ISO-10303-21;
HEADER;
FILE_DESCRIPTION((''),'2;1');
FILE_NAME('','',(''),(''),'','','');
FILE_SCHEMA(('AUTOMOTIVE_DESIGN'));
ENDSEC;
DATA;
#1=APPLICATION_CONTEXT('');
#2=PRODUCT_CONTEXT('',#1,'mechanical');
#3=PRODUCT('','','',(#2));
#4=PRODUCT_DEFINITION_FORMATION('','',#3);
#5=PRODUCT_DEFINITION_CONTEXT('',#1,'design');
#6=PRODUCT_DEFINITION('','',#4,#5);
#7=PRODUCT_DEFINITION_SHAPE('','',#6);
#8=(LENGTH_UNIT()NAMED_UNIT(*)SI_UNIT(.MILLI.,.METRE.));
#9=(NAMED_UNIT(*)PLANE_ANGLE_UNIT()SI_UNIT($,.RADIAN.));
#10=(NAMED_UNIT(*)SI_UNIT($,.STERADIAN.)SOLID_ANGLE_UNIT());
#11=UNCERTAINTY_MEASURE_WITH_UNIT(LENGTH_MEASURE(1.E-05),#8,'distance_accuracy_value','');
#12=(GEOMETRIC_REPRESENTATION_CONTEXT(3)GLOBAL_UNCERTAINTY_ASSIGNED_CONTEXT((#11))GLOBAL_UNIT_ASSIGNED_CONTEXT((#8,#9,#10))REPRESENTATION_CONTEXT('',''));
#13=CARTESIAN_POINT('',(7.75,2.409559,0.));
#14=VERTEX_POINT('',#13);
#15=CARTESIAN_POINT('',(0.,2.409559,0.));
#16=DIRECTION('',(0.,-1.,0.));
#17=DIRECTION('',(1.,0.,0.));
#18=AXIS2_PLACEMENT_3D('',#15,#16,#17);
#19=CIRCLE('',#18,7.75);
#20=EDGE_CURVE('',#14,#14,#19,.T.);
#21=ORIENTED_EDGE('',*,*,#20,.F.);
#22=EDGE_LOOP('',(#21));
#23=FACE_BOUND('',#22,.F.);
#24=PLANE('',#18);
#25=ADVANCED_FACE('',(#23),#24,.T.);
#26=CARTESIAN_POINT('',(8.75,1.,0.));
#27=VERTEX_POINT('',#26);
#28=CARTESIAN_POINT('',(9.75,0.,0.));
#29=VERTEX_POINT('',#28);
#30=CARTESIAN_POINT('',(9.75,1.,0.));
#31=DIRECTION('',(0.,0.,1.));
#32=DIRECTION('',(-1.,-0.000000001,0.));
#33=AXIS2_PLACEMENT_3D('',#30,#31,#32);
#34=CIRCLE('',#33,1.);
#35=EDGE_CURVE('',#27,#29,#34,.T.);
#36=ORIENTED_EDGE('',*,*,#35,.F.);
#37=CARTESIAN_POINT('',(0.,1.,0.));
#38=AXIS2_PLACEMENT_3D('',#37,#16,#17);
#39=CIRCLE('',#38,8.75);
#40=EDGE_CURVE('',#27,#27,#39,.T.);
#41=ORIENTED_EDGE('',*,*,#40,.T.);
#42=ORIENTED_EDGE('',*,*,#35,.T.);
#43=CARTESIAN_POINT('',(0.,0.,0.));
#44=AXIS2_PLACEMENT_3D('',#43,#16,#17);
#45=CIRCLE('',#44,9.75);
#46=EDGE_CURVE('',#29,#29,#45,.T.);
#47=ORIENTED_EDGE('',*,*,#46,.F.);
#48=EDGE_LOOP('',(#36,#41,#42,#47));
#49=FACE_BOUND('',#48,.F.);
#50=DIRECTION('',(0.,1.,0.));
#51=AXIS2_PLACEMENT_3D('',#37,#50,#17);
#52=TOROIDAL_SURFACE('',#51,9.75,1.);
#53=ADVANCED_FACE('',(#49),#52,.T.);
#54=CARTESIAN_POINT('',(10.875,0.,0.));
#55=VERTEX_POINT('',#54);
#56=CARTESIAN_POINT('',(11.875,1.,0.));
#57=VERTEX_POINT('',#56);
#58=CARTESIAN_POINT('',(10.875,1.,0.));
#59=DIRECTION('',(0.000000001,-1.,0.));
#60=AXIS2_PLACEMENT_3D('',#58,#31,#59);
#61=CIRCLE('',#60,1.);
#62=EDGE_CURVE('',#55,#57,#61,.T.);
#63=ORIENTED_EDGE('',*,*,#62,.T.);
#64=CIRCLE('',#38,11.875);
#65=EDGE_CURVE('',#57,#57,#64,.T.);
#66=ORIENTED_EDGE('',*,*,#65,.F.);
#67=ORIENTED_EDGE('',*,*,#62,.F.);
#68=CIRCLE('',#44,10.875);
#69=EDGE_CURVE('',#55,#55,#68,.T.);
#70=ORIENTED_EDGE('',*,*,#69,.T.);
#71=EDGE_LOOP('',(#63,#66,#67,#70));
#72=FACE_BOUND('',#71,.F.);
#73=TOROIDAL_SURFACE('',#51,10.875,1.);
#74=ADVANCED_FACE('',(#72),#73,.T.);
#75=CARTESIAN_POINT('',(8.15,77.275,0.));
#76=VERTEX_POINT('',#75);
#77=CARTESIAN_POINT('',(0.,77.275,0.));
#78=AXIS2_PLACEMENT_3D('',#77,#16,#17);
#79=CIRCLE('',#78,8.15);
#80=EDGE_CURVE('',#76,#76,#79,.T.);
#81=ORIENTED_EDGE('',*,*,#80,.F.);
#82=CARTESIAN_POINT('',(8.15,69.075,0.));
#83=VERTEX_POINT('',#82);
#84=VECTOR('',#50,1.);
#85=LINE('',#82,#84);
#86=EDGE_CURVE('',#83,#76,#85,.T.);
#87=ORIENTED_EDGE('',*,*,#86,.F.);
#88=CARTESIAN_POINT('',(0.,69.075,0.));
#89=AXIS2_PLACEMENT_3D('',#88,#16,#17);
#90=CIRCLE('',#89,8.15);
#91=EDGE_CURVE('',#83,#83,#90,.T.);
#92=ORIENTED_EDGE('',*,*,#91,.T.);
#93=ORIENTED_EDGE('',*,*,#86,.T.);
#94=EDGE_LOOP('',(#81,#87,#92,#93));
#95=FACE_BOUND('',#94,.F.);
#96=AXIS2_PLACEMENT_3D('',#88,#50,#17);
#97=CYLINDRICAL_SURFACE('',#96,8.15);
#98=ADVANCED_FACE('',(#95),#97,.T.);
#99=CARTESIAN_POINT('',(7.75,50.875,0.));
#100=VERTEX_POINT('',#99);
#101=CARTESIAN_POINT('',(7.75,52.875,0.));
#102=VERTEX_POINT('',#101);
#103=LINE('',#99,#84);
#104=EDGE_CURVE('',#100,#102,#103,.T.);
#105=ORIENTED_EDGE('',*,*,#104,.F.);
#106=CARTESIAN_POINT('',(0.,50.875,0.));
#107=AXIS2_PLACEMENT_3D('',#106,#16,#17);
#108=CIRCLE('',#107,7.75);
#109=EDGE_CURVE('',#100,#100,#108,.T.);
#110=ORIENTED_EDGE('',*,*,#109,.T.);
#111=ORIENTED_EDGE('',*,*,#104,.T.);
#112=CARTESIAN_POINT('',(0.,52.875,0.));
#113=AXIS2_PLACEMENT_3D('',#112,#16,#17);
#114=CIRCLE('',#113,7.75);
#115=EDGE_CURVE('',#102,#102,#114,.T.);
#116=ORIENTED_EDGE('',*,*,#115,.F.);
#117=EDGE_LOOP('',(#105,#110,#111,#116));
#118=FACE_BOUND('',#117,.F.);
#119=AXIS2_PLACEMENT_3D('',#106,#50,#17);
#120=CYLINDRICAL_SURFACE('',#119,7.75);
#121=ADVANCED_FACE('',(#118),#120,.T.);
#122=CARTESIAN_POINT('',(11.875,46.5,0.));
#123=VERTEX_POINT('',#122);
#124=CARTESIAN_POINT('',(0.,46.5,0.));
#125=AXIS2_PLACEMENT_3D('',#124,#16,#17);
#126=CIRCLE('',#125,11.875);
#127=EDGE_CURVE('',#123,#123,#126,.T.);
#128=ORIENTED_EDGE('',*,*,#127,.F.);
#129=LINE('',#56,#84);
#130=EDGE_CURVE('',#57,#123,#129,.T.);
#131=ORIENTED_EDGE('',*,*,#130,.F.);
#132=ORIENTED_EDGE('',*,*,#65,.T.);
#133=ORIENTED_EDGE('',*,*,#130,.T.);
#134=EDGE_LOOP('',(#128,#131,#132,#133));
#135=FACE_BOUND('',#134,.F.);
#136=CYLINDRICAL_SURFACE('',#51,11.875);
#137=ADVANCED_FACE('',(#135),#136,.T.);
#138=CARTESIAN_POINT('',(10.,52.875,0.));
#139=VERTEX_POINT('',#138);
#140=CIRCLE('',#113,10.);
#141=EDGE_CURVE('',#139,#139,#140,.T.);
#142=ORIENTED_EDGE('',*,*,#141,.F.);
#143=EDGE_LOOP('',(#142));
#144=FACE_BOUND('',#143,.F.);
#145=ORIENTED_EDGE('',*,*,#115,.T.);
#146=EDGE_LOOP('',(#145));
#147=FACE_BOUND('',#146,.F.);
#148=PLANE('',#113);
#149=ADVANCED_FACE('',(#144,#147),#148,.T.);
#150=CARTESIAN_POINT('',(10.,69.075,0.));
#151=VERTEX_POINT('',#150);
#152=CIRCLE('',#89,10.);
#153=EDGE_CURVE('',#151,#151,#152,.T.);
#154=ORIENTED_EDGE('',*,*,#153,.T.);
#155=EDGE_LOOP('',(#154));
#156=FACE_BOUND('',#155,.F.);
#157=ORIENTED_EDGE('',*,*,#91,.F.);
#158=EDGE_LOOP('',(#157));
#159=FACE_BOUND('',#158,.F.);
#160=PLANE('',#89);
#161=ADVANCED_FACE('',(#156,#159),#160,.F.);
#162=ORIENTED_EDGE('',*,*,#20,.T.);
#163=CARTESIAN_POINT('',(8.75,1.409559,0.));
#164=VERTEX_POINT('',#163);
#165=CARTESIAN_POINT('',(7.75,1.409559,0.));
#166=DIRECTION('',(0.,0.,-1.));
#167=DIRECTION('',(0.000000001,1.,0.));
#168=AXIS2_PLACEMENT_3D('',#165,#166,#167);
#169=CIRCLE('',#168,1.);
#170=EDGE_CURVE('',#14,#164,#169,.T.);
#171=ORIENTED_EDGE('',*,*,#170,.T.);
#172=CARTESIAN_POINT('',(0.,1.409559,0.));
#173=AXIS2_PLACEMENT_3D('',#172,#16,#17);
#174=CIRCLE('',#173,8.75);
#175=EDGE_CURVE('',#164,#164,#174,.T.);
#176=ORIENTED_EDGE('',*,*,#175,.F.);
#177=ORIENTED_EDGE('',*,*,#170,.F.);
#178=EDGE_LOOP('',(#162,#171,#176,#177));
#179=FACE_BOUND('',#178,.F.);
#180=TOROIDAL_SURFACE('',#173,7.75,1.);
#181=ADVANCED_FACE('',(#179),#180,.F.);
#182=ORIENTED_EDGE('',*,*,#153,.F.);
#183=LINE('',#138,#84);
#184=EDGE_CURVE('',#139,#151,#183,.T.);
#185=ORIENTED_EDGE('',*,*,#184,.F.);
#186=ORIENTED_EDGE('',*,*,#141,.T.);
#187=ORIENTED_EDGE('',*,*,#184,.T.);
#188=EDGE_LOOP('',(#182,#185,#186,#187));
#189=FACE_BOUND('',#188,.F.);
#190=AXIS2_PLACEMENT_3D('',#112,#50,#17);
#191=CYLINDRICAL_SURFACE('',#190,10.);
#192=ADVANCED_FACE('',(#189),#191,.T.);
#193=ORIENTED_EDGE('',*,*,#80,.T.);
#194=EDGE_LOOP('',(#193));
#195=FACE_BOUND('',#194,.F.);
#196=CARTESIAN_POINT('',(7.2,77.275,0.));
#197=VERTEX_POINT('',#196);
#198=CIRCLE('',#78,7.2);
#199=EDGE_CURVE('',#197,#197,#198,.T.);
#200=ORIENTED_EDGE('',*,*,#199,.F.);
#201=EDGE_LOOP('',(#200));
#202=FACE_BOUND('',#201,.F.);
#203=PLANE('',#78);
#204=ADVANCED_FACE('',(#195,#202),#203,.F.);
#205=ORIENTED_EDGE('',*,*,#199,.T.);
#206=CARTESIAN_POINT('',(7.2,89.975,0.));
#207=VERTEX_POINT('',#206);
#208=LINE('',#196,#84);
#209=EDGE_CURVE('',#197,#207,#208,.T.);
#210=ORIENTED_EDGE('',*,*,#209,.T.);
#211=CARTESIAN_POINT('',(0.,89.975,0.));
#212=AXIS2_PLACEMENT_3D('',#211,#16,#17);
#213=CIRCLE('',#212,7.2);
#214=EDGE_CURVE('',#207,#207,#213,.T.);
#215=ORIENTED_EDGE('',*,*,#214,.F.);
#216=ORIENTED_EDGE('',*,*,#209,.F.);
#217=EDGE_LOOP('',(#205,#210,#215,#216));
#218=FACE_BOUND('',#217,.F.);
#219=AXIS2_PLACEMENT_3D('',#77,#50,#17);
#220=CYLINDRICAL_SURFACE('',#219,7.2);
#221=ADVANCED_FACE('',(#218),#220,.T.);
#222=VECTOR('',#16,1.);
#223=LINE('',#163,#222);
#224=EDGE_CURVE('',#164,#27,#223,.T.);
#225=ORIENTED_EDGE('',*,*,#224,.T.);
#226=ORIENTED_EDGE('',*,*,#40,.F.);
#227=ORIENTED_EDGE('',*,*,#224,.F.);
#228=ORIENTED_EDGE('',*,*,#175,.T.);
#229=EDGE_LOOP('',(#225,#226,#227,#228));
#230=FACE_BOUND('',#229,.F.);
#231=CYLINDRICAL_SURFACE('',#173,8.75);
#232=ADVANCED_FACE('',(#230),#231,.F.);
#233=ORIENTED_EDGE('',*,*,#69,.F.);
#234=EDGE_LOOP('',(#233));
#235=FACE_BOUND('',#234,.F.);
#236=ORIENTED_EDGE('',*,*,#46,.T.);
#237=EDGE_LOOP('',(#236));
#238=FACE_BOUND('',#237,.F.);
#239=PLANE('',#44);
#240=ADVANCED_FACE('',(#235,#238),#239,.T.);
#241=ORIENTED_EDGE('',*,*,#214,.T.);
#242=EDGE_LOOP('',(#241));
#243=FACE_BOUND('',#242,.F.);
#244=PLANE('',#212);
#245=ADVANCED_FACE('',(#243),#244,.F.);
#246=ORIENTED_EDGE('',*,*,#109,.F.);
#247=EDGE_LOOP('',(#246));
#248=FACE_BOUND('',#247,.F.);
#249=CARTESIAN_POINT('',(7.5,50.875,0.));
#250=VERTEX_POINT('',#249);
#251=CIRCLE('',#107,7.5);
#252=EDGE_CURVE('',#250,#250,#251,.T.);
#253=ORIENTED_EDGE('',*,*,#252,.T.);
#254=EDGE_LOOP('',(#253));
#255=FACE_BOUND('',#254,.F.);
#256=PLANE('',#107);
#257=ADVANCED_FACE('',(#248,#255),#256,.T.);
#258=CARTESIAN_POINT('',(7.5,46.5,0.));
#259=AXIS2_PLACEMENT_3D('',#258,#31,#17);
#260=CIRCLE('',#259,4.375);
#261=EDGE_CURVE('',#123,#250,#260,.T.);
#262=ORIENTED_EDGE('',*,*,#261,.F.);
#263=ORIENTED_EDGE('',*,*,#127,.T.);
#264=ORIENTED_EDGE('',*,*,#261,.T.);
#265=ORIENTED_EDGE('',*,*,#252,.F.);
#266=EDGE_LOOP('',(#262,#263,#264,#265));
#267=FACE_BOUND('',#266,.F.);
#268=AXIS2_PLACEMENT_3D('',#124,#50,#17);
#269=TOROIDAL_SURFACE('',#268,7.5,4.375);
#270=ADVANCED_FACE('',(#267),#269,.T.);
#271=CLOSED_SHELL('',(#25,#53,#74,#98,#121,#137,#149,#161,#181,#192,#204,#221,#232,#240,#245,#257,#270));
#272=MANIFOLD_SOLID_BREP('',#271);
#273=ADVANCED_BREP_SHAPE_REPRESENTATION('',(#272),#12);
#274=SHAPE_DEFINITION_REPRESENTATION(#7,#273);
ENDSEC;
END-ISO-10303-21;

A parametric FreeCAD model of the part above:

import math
import FreeCAD as App
import Part
import Sketcher

V = App.Vector
Q = App.Units.Quantity

doc = App.newDocument("Part")
body = doc.addObject("PartDesign::Body", "Body")

# Sketch on XY plane
sketch1 = doc.addObject("Sketcher::SketchObject", "Sketch")
body.addObject(sketch1)
sketch1.AttachmentSupport = (doc.XY_Plane, [""])
sketch1.MapMode = "FlatFace"
sketch1.addGeometry(Part.LineSegment(V(9.75, 0, 0), V(10.88, 0, 0)), False)
sketch1.addGeometry(Part.ArcOfCircle(Part.Circle(V(10.87, 1, 0), V(0, 0, 1), 1), math.radians(-90), math.radians(0)), False)
sketch1.addGeometry(Part.LineSegment(V(11.88, 1, 0), V(11.88, 46.5, 0)), False)
sketch1.addGeometry(Part.ArcOfCircle(Part.Circle(V(7.5, 46.5, 0), V(0, 0, 1), 4.37), math.radians(0), math.radians(90)), False)
sketch1.addGeometry(Part.LineSegment(V(7.5, 50.88, 0), V(7.75, 50.88, 0)), False)
sketch1.addGeometry(Part.LineSegment(V(7.75, 50.88, 0), V(7.75, 52.88, 0)), False)
sketch1.addGeometry(Part.LineSegment(V(7.75, 52.88, 0), V(10, 52.88, 0)), False)
sketch1.addGeometry(Part.LineSegment(V(10, 52.88, 0), V(10, 69.08, 0)), False)
sketch1.addGeometry(Part.LineSegment(V(10, 69.08, 0), V(8.15, 69.08, 0)), False)
sketch1.addGeometry(Part.LineSegment(V(8.15, 69.08, 0), V(8.15, 77.28, 0)), False)
sketch1.addGeometry(Part.LineSegment(V(8.15, 77.28, 0), V(7.2, 77.28, 0)), False)
sketch1.addGeometry(Part.LineSegment(V(7.2, 77.28, 0), V(7.2, 89.97, 0)), False)
sketch1.addGeometry(Part.LineSegment(V(7.2, 89.97, 0), V(0, 89.97, 0)), False)
sketch1.addGeometry(Part.LineSegment(V(0, 89.97, 0), V(0, 2.41, 0)), False)
sketch1.addGeometry(Part.LineSegment(V(0, 2.41, 0), V(7.75, 2.41, 0)), False)
sketch1.addGeometry(Part.ArcOfCircle(Part.Circle(V(7.75, 1.41, 0), V(0, 0, 1), 1), math.radians(0), math.radians(90)), False)
sketch1.addGeometry(Part.LineSegment(V(8.75, 1.41, 0), V(8.75, 1, 0)), False)
sketch1.addGeometry(Part.ArcOfCircle(Part.Circle(V(9.75, 1, 0), V(0, 0, 1), 1), math.radians(-180), math.radians(-90)), False)
sketch1.addConstraint(Sketcher.Constraint("Tangent", 0, 2, 1, 1))
sketch1.addConstraint(Sketcher.Constraint("Tangent", 1, 2, 2, 1))
sketch1.addConstraint(Sketcher.Constraint("Tangent", 2, 2, 3, 1))
sketch1.addConstraint(Sketcher.Constraint("Tangent", 3, 2, 4, 1))
sketch1.addConstraint(Sketcher.Constraint("Coincident", 4, 2, 5, 1))
sketch1.addConstraint(Sketcher.Constraint("Coincident", 5, 2, 6, 1))
sketch1.addConstraint(Sketcher.Constraint("Coincident", 6, 2, 7, 1))
sketch1.addConstraint(Sketcher.Constraint("Coincident", 7, 2, 8, 1))
sketch1.addConstraint(Sketcher.Constraint("Coincident", 8, 2, 9, 1))
sketch1.addConstraint(Sketcher.Constraint("Coincident", 9, 2, 10, 1))
sketch1.addConstraint(Sketcher.Constraint("Coincident", 10, 2, 11, 1))
sketch1.addConstraint(Sketcher.Constraint("Coincident", 11, 2, 12, 1))
sketch1.addConstraint(Sketcher.Constraint("Coincident", 12, 2, 13, 1))
sketch1.addConstraint(Sketcher.Constraint("Coincident", 13, 2, 14, 1))
sketch1.addConstraint(Sketcher.Constraint("Tangent", 14, 2, 15, 2))
sketch1.addConstraint(Sketcher.Constraint("Tangent", 15, 1, 16, 1))
sketch1.addConstraint(Sketcher.Constraint("Tangent", 16, 2, 17, 1))
sketch1.addConstraint(Sketcher.Constraint("Tangent", 17, 2, 0, 1))
sketch1.addConstraint(Sketcher.Constraint("Horizontal", 0))
sketch1.addConstraint(Sketcher.Constraint("Vertical", 2))
sketch1.addConstraint(Sketcher.Constraint("Horizontal", 4))
sketch1.addConstraint(Sketcher.Constraint("Vertical", 5))
sketch1.addConstraint(Sketcher.Constraint("Horizontal", 6))
sketch1.addConstraint(Sketcher.Constraint("Vertical", 7))
sketch1.addConstraint(Sketcher.Constraint("Horizontal", 8))
sketch1.addConstraint(Sketcher.Constraint("Vertical", 9))
sketch1.addConstraint(Sketcher.Constraint("Horizontal", 10))
sketch1.addConstraint(Sketcher.Constraint("Vertical", 11))
sketch1.addConstraint(Sketcher.Constraint("Horizontal", 12))
sketch1.addConstraint(Sketcher.Constraint("Vertical", 13))
sketch1.addConstraint(Sketcher.Constraint("Horizontal", 14))
sketch1.addConstraint(Sketcher.Constraint("Vertical", 16))
sketch1.addConstraint(Sketcher.Constraint("Equal", 1, 15))
sketch1.addConstraint(Sketcher.Constraint("Equal", 15, 17))
sketch1.addConstraint(Sketcher.Constraint("PointOnObject", 0, 2, -1))
sketch1.addConstraint(Sketcher.Constraint("PointOnObject", 12, 2, -2))
sketch1.addConstraint(Sketcher.Constraint("Vertical", 15, 3, 4, 2))
sketch1.addConstraint(Sketcher.Constraint("Radius", 1, Q("1 mm")))
sketch1.addConstraint(Sketcher.Constraint("DistanceY", 5, 1, 5, 2, Q("2 mm")))
sketch1.addConstraint(Sketcher.Constraint("DistanceX", 12, 2, 12, 1, Q("7.2 mm")))
sketch1.addConstraint(Sketcher.Constraint("DistanceY", 2, 1, 2, 2, Q("45.5 mm")))
sketch1.addConstraint(Sketcher.Constraint("DistanceY", 7, 1, 7, 2, Q("16.2 mm")))
sketch1.addConstraint(Sketcher.Constraint("DistanceY", 9, 1, 9, 2, Q("8.2 mm")))
sketch1.addConstraint(Sketcher.Constraint("DistanceY", 11, 1, 11, 2, Q("12.7 mm")))
sketch1.addConstraint(Sketcher.Constraint("DistanceX", -1, 1, 6, 2, Q("10 mm")))
sketch1.addConstraint(Sketcher.Constraint("Radius", 3, Q("4.375 mm")))
sketch1.addConstraint(Sketcher.Constraint("DistanceX", 4, 1, 4, 2, Q("0.25 mm")))
sketch1.addConstraint(Sketcher.Constraint("DistanceX", 6, 1, 6, 2, Q("2.25 mm")))
sketch1.addConstraint(Sketcher.Constraint("DistanceX", 8, 2, 8, 1, Q("1.85 mm")))
sketch1.addConstraint(Sketcher.Constraint("DistanceY", 13, 2, 13, 1, Q("87.565441 mm")))
revolution = doc.addObject("PartDesign::Revolution", "Revolution")
body.addObject(revolution)
revolution.Profile = sketch1
revolution.ReferenceAxis = (sketch1, ["V_Axis"])
revolution.Angle = 360

doc.recompute()
